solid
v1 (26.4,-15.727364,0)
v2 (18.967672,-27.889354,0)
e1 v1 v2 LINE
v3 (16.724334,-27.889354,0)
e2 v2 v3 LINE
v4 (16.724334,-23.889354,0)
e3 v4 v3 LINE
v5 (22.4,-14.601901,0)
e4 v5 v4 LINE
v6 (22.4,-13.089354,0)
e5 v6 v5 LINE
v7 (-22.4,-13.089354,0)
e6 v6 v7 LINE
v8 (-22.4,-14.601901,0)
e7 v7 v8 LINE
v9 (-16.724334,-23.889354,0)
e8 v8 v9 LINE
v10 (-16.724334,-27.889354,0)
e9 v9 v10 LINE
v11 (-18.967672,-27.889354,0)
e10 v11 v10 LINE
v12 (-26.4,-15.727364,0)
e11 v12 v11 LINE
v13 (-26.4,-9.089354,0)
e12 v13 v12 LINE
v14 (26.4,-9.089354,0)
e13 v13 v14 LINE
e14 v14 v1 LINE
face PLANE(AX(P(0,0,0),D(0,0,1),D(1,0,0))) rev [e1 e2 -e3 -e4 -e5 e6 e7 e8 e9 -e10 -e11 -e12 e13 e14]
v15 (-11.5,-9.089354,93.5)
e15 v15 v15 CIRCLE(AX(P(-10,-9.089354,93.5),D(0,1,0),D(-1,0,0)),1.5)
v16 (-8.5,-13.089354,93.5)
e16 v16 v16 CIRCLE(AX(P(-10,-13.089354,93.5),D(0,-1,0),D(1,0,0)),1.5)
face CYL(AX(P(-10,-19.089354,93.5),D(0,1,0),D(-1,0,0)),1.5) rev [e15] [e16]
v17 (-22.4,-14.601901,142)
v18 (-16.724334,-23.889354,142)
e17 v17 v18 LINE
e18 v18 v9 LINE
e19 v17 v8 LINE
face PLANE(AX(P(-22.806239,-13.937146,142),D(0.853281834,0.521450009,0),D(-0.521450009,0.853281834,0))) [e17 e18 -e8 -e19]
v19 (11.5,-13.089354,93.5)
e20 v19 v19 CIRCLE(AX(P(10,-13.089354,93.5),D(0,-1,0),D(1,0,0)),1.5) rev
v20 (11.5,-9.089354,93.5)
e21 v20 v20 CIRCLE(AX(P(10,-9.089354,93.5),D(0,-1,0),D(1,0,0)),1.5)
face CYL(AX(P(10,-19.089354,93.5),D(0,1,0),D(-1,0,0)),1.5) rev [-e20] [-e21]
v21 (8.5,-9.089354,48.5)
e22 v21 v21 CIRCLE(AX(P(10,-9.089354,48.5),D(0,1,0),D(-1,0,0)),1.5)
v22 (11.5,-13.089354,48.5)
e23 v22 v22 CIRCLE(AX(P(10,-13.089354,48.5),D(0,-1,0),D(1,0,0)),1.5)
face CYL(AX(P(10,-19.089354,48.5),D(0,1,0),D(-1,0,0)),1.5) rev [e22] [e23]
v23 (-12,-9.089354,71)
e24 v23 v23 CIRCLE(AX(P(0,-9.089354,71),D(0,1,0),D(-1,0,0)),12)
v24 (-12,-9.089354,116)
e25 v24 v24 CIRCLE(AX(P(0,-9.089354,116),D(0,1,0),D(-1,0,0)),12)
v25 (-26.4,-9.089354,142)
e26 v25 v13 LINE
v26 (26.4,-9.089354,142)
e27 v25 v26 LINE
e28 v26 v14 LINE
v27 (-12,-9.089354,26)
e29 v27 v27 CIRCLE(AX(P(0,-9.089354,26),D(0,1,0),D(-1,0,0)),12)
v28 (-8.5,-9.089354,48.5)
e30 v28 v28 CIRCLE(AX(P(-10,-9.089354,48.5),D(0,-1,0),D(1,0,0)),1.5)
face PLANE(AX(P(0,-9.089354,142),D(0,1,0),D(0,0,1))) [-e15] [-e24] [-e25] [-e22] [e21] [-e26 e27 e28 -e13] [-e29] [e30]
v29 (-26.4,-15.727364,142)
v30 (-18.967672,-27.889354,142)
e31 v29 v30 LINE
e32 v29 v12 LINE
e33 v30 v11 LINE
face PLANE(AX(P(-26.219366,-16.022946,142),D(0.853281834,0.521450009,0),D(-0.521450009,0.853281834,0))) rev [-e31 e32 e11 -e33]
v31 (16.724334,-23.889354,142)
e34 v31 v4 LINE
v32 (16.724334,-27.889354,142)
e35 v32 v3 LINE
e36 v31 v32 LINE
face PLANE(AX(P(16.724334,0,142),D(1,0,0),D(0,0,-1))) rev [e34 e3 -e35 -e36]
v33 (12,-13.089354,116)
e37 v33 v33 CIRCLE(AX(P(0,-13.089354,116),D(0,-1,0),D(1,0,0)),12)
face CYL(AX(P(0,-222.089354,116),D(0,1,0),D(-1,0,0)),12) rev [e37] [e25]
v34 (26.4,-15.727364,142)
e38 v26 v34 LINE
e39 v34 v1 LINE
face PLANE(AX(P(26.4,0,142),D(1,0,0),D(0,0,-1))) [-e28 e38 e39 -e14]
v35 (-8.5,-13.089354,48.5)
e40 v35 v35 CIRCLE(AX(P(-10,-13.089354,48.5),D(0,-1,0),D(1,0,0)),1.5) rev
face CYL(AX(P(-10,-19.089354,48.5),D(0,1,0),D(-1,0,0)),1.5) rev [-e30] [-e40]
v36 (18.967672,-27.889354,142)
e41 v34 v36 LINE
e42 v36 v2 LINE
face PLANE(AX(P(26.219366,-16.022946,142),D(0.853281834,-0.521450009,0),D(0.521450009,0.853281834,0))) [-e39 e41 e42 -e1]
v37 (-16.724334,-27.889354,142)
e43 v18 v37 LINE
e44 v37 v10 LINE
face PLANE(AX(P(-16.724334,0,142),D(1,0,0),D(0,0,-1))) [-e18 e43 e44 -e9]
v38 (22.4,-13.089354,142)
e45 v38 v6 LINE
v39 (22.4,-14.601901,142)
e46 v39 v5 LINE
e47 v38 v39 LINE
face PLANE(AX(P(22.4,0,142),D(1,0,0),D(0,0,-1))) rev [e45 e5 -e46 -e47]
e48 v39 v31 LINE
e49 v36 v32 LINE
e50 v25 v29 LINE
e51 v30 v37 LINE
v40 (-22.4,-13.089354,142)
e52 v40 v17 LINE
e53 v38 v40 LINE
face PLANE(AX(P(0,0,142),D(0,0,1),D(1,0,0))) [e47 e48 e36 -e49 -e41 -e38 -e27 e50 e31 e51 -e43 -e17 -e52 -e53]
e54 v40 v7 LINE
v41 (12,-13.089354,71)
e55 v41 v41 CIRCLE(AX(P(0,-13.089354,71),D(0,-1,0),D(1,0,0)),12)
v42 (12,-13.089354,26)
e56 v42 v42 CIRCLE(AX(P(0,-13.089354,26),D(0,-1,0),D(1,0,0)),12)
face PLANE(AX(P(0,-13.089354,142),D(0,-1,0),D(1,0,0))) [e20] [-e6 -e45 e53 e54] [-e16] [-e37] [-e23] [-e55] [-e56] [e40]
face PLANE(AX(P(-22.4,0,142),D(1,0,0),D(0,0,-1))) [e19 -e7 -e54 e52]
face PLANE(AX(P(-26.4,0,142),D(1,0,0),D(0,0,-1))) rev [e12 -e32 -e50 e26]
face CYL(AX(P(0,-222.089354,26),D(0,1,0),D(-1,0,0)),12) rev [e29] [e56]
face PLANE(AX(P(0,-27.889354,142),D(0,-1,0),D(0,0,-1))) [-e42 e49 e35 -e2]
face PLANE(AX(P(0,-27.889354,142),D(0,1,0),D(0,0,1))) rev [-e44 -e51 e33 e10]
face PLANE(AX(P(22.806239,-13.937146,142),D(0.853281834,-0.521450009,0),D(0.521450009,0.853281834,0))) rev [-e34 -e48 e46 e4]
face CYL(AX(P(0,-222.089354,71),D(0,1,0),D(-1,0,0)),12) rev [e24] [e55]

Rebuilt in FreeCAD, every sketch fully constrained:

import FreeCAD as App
import Part
import Sketcher

V = App.Vector
Q = App.Units.Quantity

doc = App.newDocument("Part")
body = doc.addObject("PartDesign::Body", "Body")

# Sketch on XY plane
sketch1 = doc.addObject("Sketcher::SketchObject", "Sketch")
body.addObject(sketch1)
sketch1.AttachmentSupport = (doc.XY_Plane, [""])
sketch1.MapMode = "FlatFace"
sketch1.addGeometry([
    Part.LineSegment(V(-22.4, -13.1, 0), V(22.4, -13.1, 0)),  # 0
    Part.LineSegment(V(22.4, -13.1, 0), V(22.4, -14.6, 0)),  # 1
    Part.LineSegment(V(22.4, -14.6, 0), V(16.7, -23.9, 0)),  # 2
    Part.LineSegment(V(16.7, -23.9, 0), V(16.7, -27.9, 0)),  # 3
    Part.LineSegment(V(16.7, -27.9, 0), V(19, -27.9, 0)),  # 4
    Part.LineSegment(V(19, -27.9, 0), V(26.4, -15.7, 0)),  # 5
    Part.LineSegment(V(26.4, -15.7, 0), V(26.4, -9.1, 0)),  # 6
    Part.LineSegment(V(26.4, -9.1, 0), V(-26.4, -9.1, 0)),  # 7
    Part.LineSegment(V(-26.4, -9.1, 0), V(-26.4, -15.7, 0)),  # 8
    Part.LineSegment(V(-26.4, -15.7, 0), V(-19, -27.9, 0)),  # 9
    Part.LineSegment(V(-19, -27.9, 0), V(-16.7, -27.9, 0)),  # 10
    Part.LineSegment(V(-16.7, -27.9, 0), V(-16.7, -23.9, 0)),  # 11
    Part.LineSegment(V(-16.7, -23.9, 0), V(-22.4, -14.6, 0)),  # 12
    Part.LineSegment(V(-22.4, -14.6, 0), V(-22.4, -13.1, 0)),  # 13
], False)
sketch1.addConstraint([
    Sketcher.Constraint("Coincident", 0, 2, 1, 1),
    Sketcher.Constraint("Coincident", 1, 2, 2, 1),
    Sketcher.Constraint("Coincident", 2, 2, 3, 1),
    Sketcher.Constraint("Coincident", 3, 2, 4, 1),
    Sketcher.Constraint("Coincident", 4, 2, 5, 1),
    Sketcher.Constraint("Coincident", 5, 2, 6, 1),
    Sketcher.Constraint("Coincident", 6, 2, 7, 1),
    Sketcher.Constraint("Coincident", 7, 2, 8, 1),
    Sketcher.Constraint("Coincident", 8, 2, 9, 1),
    Sketcher.Constraint("Coincident", 9, 2, 10, 1),
    Sketcher.Constraint("Coincident", 10, 2, 11, 1),
    Sketcher.Constraint("Coincident", 11, 2, 12, 1),
    Sketcher.Constraint("Coincident", 12, 2, 13, 1),
    Sketcher.Constraint("Coincident", 13, 2, 0, 1),
    Sketcher.Constraint("Horizontal", 0),
    Sketcher.Constraint("Vertical", 1),
    Sketcher.Constraint("Vertical", 3),
    Sketcher.Constraint("Horizontal", 4),
    Sketcher.Constraint("Vertical", 6),
    Sketcher.Constraint("Horizontal", 7),
    Sketcher.Constraint("Vertical", 8),
    Sketcher.Constraint("Horizontal", 10),
    Sketcher.Constraint("Vertical", 11),
    Sketcher.Constraint("Vertical", 13),
    Sketcher.Constraint("Symmetric", 5, 2, 8, 2, -2),
    Sketcher.Constraint("Symmetric", 4, 2, 9, 2, -2),
    Sketcher.Constraint("Symmetric", 2, 2, 11, 2, -2),
    Sketcher.Constraint("Symmetric", 1, 2, 12, 2, -2),
    Sketcher.Constraint("Parallel", 2, 5),
    Sketcher.Constraint("DistanceY", 3, 2, 3, 1, Q("4 mm")),
    Sketcher.Constraint("DistanceX", 0, 1, 0, 2, Q("44.8 mm")),
    Sketcher.Constraint("DistanceX", 7, 2, 7, 1, Q("52.8 mm")),
    Sketcher.Constraint("DistanceY", 0, 2, 6, 2, Q("4 mm")),
    Sketcher.Constraint("DistanceY", 2, 2, 0, 2, Q("10.8 mm")),
    Sketcher.Constraint("DistanceX", 4, 1, 4, 2, Q("2.243338 mm")),
    Sketcher.Constraint("DistanceY", 6, 1, 6, 2, Q("6.638009 mm")),
    Sketcher.Constraint("DistanceY", 1, 2, -1, 1, Q("14.601901 mm")),
    Sketcher.Constraint("Distance", 2, Q("10.884392 mm")),
])
pad1 = doc.addObject("PartDesign::Pad", "Pad")
body.addObject(pad1)
pad1.Profile = sketch1
pad1.Length = 142

# Sketch on XZ plane
sketch2 = doc.addObject("Sketcher::SketchObject", "Sketch001")
body.addObject(sketch2)
sketch2.AttachmentSupport = (doc.XZ_Plane, [""])
sketch2.MapMode = "FlatFace"
sketch2.AttachmentOffset = App.Placement(V(0, 0, 9.089354), App.Rotation())
sketch2.addGeometry([
    Part.Circle(V(0, 26, 0), V(0, 0, 1), 12),
    Part.Circle(V(0, 71, 0), V(0, 0, 1), 12),
    Part.Circle(V(0, 116, 0), V(0, 0, 1), 12),
], False)
sketch2.addConstraint([
    Sketcher.Constraint("Equal", 0, 1),
    Sketcher.Constraint("Equal", 1, 2),
    Sketcher.Constraint("PointOnObject", 0, 3, -2),
    Sketcher.Constraint("PointOnObject", 1, 3, -2),
    Sketcher.Constraint("PointOnObject", 2, 3, -2),
    Sketcher.Constraint("Diameter", 0, Q("24 mm")),
    Sketcher.Constraint("DistanceY", -1, 1, 0, 3, Q("26 mm")),
    Sketcher.Constraint("DistanceY", -1, 1, 1, 3, Q("71 mm")),
    Sketcher.Constraint("DistanceY", -1, 1, 2, 3, Q("116 mm")),
])
pocket1 = doc.addObject("PartDesign::Pocket", "Pocket")
body.addObject(pocket1)
pocket1.Profile = sketch2
pocket1.Length = 213
pocket1.Reversed = True

# Sketch on XZ plane
sketch3 = doc.addObject("Sketcher::SketchObject", "Sketch002")
body.addObject(sketch3)
sketch3.AttachmentSupport = (doc.XZ_Plane, [""])
sketch3.MapMode = "FlatFace"
sketch3.AttachmentOffset = App.Placement(V(0, 0, 9.089354), App.Rotation())
sketch3.addGeometry([
    Part.Circle(V(-10, 93.5, 0), V(0, 0, 1), 1.5),
    Part.Circle(V(10, 93.5, 0), V(0, 0, 1), 1.5),
    Part.Circle(V(10, 48.5, 0), V(0, 0, 1), 1.5),
    Part.Circle(V(-10, 48.5, 0), V(0, 0, 1), 1.5),
], False)
sketch3.addConstraint([
    Sketcher.Constraint("Equal", 0, 1),
    Sketcher.Constraint("Equal", 1, 2),
    Sketcher.Constraint("Equal", 2, 3),
    Sketcher.Constraint("Symmetric", 0, 3, 1, 3, -2),
    Sketcher.Constraint("Symmetric", 2, 3, 3, 3, -2),
    Sketcher.Constraint("Vertical", 1, 3, 2, 3),
    Sketcher.Constraint("Diameter", 0, Q("3 mm")),
    Sketcher.Constraint("DistanceX", 0, 3, -1, 1, Q("10 mm")),
    Sketcher.Constraint("DistanceY", 2, 3, 1, 3, Q("45 mm")),
    Sketcher.Constraint("DistanceY", -1, 1, 0, 3, Q("93.5 mm")),
])
pocket2 = doc.addObject("PartDesign::Pocket", "Pocket001")
body.addObject(pocket2)
pocket2.Profile = sketch3
pocket2.Length = 10
pocket2.Reversed = True

doc.recompute()
